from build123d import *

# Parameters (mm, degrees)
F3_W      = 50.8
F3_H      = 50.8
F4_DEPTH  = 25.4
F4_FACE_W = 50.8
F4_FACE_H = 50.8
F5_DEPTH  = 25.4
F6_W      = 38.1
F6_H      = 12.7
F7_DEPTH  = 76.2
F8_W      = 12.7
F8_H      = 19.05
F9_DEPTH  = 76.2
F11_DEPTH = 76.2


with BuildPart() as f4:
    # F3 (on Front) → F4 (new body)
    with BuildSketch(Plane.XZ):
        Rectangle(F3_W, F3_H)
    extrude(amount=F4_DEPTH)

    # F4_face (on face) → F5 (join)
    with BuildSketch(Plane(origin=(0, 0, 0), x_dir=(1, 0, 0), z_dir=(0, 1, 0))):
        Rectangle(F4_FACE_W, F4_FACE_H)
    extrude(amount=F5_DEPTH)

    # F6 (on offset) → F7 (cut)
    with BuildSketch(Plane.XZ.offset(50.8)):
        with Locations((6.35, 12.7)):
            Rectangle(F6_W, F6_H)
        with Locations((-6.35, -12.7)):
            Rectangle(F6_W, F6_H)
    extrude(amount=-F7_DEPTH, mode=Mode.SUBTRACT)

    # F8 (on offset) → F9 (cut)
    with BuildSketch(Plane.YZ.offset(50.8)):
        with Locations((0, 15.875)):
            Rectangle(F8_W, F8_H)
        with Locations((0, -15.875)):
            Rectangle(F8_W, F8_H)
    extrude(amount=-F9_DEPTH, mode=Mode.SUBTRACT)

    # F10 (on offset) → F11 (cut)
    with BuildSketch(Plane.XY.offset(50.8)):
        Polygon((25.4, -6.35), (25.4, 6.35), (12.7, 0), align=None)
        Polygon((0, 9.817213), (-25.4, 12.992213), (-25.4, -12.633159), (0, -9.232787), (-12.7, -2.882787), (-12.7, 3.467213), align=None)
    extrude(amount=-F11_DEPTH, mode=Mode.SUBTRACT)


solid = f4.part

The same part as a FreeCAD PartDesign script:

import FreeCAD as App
import Part
import Sketcher
Q = App.Units.Quantity


def add_polygon(sketch, points):
    """Adds a closed chain of lines whose ends are joined by coincident constraints."""
    first, n = sketch.GeometryCount, len(points)
    for a, b in zip(points, points[1:] + points[:1]):
        sketch.addGeometry(Part.LineSegment(App.Vector(*a, 0), App.Vector(*b, 0)), False)
    for i in range(n):
        sketch.addConstraint(Sketcher.Constraint("Coincident", first + i, 2, first + (i + 1) % n, 1))

doc = App.newDocument("Part")
params = doc.addObject("Spreadsheet::Sheet", "Params")
for row, (alias, value) in enumerate([
    ("sketch1_width", "2 in"),
    ("pad1_length", "1 in"),
    ("sketch2_width", "2 in"),
    ("pad2_length", "1 in"),
    ("sketch3_width", "1.5 in"),
    ("sketch3_height", "0.5 in"),
    ("pocket1_length", "3 in"),
    ("sketch4_width", "0.5 in"),
    ("sketch4_height", "0.75 in"),
    ("pocket2_length", "3 in"),
    ("sketch5_height", "0.5 in"),
    ("sketch5_height2", "0.25 in"),
    ("pocket3_length", "3 in"),
], start=1):
    params.set(f"A{row}", alias)
    params.set(f"B{row}", "=" + value)
    params.setAlias(f"B{row}", alias)

body = doc.addObject("PartDesign::Body", "Body")

sketch1 = body.newObject("Sketcher::SketchObject", "Sketch")
sketch1.AttachmentSupport = (doc.getObject("XZ_Plane"), [""])
sketch1.MapMode = "FlatFace"
add_polygon(sketch1, [(-25, 25), (-25, -25), (25, -25), (25, 25)])
sketch1.addConstraint(Sketcher.Constraint("Vertical", 0))
sketch1.addConstraint(Sketcher.Constraint("Horizontal", 1))
sketch1.addConstraint(Sketcher.Constraint("Vertical", 2))
sketch1.addConstraint(Sketcher.Constraint("Horizontal", 3))
sketch1.addConstraint(Sketcher.Constraint("Symmetric", 0, 2, 2, 2, -1, 1))
sketch1.addConstraint(Sketcher.Constraint("Equal", 3, 0))
sketch1.addConstraint(Sketcher.Constraint("DistanceX", 1, 1, 1, 2, Q("2 in")))
sketch1.setExpression("Constraints[10]", "Params.sketch1_width")
pad1 = body.newObject("PartDesign::Pad", "Pad")
pad1.Profile = sketch1
pad1.setExpression("Length", "Params.pad1_length")

sketch2 = body.newObject("Sketcher::SketchObject", "Sketch001")
sketch2.AttachmentSupport = (doc.getObject("XZ_Plane"), [""])
sketch2.MapMode = "FlatFace"
add_polygon(sketch2, [(-25, -25), (-25, 25), (25, 25), (25, -25)])
sketch2.addConstraint(Sketcher.Constraint("Vertical", 0))
sketch2.addConstraint(Sketcher.Constraint("Horizontal", 1))
sketch2.addConstraint(Sketcher.Constraint("Vertical", 2))
sketch2.addConstraint(Sketcher.Constraint("Horizontal", 3))
sketch2.addConstraint(Sketcher.Constraint("Symmetric", 0, 2, 2, 2, -1, 1))
sketch2.addConstraint(Sketcher.Constraint("Equal", 3, 0))
sketch2.addConstraint(Sketcher.Constraint("DistanceX", 1, 1, 1, 2, Q("2 in")))
sketch2.setExpression("Constraints[10]", "Params.sketch2_width")
pad2 = body.newObject("PartDesign::Pad", "Pad001")
pad2.Profile = sketch2
pad2.setExpression("Length", "Params.pad2_length")
pad2.Reversed = True

sketch3 = body.newObject("Sketcher::SketchObject", "Sketch002")
sketch3.AttachmentSupport = (doc.getObject("XZ_Plane"), [""])
sketch3.MapMode = "FlatFace"
sketch3.AttachmentOffset = App.Placement(App.Vector(0, 0, 2 * 25.4), App.Rotation())
add_polygon(sketch3, [(-13, 19), (-13, 6), (25, 6), (25, 19)])
add_polygon(sketch3, [(-25, -6), (-25, -19), (13, -19), (13, -6)])
sketch3.addConstraint(Sketcher.Constraint("Vertical", 0))
sketch3.addConstraint(Sketcher.Constraint("Horizontal", 1))
sketch3.addConstraint(Sketcher.Constraint("Vertical", 2))
sketch3.addConstraint(Sketcher.Constraint("Horizontal", 3))
sketch3.addConstraint(Sketcher.Constraint("Vertical", 4))
sketch3.addConstraint(Sketcher.Constraint("Horizontal", 5))
sketch3.addConstraint(Sketcher.Constraint("Vertical", 6))
sketch3.addConstraint(Sketcher.Constraint("Horizontal", 7))
sketch3.addConstraint(Sketcher.Constraint("Symmetric", 2, 2, 4, 2, -1, 1))
sketch3.addConstraint(Sketcher.Constraint("Symmetric", 0, 2, 6, 2, -1, 1))
sketch3.addConstraint(Sketcher.Constraint("DistanceX", 1, 1, 1, 2, Q("1.5 in")))
sketch3.addConstraint(Sketcher.Constraint("DistanceY", 0, 2, 0, 1, Q("0.5 in")))
sketch3.addConstraint(Sketcher.Constraint("DistanceX", -1, 1, 1, 2, Q("1 in")))
sketch3.addConstraint(Sketcher.Constraint("DistanceY", 4, 2, 0, 2, Q("1 in")))
sketch3.setExpression("Constraints[18]", "Params.sketch3_width")
sketch3.setExpression("Constraints[19]", "Params.sketch3_height")
pocket1 = body.newObject("PartDesign::Pocket", "Pocket")
pocket1.Profile = sketch3
pocket1.setExpression("Length", "Params.pocket1_length")

sketch4 = body.newObject("Sketcher::SketchObject", "Sketch003")
sketch4.AttachmentSupport = (doc.getObject("YZ_Plane"), [""])
sketch4.MapMode = "FlatFace"
sketch4.AttachmentOffset = App.Placement(App.Vector(0, 0, 2 * 25.4), App.Rotation())
add_polygon(sketch4, [(-6, 25), (-6, 6), (6, 6), (6, 25)])
add_polygon(sketch4, [(-6, -6), (-6, -25), (6, -25), (6, -6)])
sketch4.addConstraint(Sketcher.Constraint("Vertical", 0))
sketch4.addConstraint(Sketcher.Constraint("Horizontal", 1))
sketch4.addConstraint(Sketcher.Constraint("Vertical", 2))
sketch4.addConstraint(Sketcher.Constraint("Horizontal", 3))
sketch4.addConstraint(Sketcher.Constraint("Vertical", 4))
sketch4.addConstraint(Sketcher.Constraint("Horizontal", 5))
sketch4.addConstraint(Sketcher.Constraint("Vertical", 6))
sketch4.addConstraint(Sketcher.Constraint("Horizontal", 7))
sketch4.addConstraint(Sketcher.Constraint("Symmetric", 2, 2, 4, 2, -1, 1))
sketch4.addConstraint(Sketcher.Constraint("Symmetric", 0, 2, 6, 2, -1, 1))
sketch4.addConstraint(Sketcher.Constraint("Vertical", 3, 2, 4, 2))
sketch4.addConstraint(Sketcher.Constraint("DistanceX", 1, 1, 1, 2, Q("0.5 in")))
sketch4.addConstraint(Sketcher.Constraint("DistanceY", -1, 1, 2, 2, Q("1 in")))
sketch4.addConstraint(Sketcher.Constraint("DistanceY", 0, 2, 0, 1, Q("0.75 in")))
sketch4.setExpression("Constraints[19]", "Params.sketch4_width")
sketch4.setExpression("Constraints[21]", "Params.sketch4_height")
pocket2 = body.newObject("PartDesign::Pocket", "Pocket001")
pocket2.Profile = sketch4
pocket2.setExpression("Length", "Params.pocket2_length")

sketch5 = body.newObject("Sketcher::SketchObject", "Sketch004")
sketch5.AttachmentSupport = (doc.getObject("XY_Plane"), [""])
sketch5.MapMode = "FlatFace"
sketch5.AttachmentOffset = App.Placement(App.Vector(0, 0, 2 * 25.4), App.Rotation())
add_polygon(sketch5, [(25, -6), (25, 6), (13, 0)])
add_polygon(sketch5, [(0, 10), (-25, 13), (-25, -13), (0, -9), (-13, -3), (-13, 3)])
sketch5.addConstraint(Sketcher.Constraint("Vertical", 0))
sketch5.addConstraint(Sketcher.Constraint("Vertical", 4))
sketch5.addConstraint(Sketcher.Constraint("Vertical", 7))
sketch5.addConstraint(Sketcher.Constraint("PointOnObject", 1, 2, -1))
sketch5.addConstraint(Sketcher.Constraint("PointOnObject", 5, 2, -2))
sketch5.addConstraint(Sketcher.Constraint("PointOnObject", 8, 2, -2))
sketch5.addConstraint(Sketcher.Constraint("Parallel", 2, 6))
sketch5.addConstraint(Sketcher.Constraint("Parallel", 1, 8))
sketch5.addConstraint(Sketcher.Constraint("Equal", 1, 2))
sketch5.addConstraint(Sketcher.Constraint("Equal", 2, 6))
sketch5.addConstraint(Sketcher.Constraint("DistanceY", 0, 1, 0, 2, Q("0.5 in")))
sketch5.addConstraint(Sketcher.Constraint("DistanceX", -1, 1, 0, 2, Q("1 in")))
sketch5.addConstraint(Sketcher.Constraint("DistanceX", 3, 2, -1, 1, Q("1 in")))
sketch5.addConstraint(Sketcher.Constraint("DistanceY", 7, 1, 7, 2, Q("0.25 in")))
sketch5.addConstraint(Sketcher.Constraint("DistanceX", -1, 1, 1, 2, Q("0.5 in")))
sketch5.addConstraint(Sketcher.Constraint("DistanceY", 5, 2, 3, 2, Q("0.875 in")))
sketch5.addConstraint(Sketcher.Constraint("Distance", 5, Q("25.626598 mm")))
sketch5.addConstraint(Sketcher.Constraint("DistanceY", 4, 2, -1, 1, Q("12.633159 mm")))
sketch5.setExpression("Constraints[19]", "Params.sketch5_height")
sketch5.setExpression("Constraints[22]", "Params.sketch5_height2")
pocket3 = body.newObject("PartDesign::Pocket", "Pocket002")
pocket3.Profile = sketch5
pocket3.setExpression("Length", "Params.pocket3_length")

doc.recompute()
